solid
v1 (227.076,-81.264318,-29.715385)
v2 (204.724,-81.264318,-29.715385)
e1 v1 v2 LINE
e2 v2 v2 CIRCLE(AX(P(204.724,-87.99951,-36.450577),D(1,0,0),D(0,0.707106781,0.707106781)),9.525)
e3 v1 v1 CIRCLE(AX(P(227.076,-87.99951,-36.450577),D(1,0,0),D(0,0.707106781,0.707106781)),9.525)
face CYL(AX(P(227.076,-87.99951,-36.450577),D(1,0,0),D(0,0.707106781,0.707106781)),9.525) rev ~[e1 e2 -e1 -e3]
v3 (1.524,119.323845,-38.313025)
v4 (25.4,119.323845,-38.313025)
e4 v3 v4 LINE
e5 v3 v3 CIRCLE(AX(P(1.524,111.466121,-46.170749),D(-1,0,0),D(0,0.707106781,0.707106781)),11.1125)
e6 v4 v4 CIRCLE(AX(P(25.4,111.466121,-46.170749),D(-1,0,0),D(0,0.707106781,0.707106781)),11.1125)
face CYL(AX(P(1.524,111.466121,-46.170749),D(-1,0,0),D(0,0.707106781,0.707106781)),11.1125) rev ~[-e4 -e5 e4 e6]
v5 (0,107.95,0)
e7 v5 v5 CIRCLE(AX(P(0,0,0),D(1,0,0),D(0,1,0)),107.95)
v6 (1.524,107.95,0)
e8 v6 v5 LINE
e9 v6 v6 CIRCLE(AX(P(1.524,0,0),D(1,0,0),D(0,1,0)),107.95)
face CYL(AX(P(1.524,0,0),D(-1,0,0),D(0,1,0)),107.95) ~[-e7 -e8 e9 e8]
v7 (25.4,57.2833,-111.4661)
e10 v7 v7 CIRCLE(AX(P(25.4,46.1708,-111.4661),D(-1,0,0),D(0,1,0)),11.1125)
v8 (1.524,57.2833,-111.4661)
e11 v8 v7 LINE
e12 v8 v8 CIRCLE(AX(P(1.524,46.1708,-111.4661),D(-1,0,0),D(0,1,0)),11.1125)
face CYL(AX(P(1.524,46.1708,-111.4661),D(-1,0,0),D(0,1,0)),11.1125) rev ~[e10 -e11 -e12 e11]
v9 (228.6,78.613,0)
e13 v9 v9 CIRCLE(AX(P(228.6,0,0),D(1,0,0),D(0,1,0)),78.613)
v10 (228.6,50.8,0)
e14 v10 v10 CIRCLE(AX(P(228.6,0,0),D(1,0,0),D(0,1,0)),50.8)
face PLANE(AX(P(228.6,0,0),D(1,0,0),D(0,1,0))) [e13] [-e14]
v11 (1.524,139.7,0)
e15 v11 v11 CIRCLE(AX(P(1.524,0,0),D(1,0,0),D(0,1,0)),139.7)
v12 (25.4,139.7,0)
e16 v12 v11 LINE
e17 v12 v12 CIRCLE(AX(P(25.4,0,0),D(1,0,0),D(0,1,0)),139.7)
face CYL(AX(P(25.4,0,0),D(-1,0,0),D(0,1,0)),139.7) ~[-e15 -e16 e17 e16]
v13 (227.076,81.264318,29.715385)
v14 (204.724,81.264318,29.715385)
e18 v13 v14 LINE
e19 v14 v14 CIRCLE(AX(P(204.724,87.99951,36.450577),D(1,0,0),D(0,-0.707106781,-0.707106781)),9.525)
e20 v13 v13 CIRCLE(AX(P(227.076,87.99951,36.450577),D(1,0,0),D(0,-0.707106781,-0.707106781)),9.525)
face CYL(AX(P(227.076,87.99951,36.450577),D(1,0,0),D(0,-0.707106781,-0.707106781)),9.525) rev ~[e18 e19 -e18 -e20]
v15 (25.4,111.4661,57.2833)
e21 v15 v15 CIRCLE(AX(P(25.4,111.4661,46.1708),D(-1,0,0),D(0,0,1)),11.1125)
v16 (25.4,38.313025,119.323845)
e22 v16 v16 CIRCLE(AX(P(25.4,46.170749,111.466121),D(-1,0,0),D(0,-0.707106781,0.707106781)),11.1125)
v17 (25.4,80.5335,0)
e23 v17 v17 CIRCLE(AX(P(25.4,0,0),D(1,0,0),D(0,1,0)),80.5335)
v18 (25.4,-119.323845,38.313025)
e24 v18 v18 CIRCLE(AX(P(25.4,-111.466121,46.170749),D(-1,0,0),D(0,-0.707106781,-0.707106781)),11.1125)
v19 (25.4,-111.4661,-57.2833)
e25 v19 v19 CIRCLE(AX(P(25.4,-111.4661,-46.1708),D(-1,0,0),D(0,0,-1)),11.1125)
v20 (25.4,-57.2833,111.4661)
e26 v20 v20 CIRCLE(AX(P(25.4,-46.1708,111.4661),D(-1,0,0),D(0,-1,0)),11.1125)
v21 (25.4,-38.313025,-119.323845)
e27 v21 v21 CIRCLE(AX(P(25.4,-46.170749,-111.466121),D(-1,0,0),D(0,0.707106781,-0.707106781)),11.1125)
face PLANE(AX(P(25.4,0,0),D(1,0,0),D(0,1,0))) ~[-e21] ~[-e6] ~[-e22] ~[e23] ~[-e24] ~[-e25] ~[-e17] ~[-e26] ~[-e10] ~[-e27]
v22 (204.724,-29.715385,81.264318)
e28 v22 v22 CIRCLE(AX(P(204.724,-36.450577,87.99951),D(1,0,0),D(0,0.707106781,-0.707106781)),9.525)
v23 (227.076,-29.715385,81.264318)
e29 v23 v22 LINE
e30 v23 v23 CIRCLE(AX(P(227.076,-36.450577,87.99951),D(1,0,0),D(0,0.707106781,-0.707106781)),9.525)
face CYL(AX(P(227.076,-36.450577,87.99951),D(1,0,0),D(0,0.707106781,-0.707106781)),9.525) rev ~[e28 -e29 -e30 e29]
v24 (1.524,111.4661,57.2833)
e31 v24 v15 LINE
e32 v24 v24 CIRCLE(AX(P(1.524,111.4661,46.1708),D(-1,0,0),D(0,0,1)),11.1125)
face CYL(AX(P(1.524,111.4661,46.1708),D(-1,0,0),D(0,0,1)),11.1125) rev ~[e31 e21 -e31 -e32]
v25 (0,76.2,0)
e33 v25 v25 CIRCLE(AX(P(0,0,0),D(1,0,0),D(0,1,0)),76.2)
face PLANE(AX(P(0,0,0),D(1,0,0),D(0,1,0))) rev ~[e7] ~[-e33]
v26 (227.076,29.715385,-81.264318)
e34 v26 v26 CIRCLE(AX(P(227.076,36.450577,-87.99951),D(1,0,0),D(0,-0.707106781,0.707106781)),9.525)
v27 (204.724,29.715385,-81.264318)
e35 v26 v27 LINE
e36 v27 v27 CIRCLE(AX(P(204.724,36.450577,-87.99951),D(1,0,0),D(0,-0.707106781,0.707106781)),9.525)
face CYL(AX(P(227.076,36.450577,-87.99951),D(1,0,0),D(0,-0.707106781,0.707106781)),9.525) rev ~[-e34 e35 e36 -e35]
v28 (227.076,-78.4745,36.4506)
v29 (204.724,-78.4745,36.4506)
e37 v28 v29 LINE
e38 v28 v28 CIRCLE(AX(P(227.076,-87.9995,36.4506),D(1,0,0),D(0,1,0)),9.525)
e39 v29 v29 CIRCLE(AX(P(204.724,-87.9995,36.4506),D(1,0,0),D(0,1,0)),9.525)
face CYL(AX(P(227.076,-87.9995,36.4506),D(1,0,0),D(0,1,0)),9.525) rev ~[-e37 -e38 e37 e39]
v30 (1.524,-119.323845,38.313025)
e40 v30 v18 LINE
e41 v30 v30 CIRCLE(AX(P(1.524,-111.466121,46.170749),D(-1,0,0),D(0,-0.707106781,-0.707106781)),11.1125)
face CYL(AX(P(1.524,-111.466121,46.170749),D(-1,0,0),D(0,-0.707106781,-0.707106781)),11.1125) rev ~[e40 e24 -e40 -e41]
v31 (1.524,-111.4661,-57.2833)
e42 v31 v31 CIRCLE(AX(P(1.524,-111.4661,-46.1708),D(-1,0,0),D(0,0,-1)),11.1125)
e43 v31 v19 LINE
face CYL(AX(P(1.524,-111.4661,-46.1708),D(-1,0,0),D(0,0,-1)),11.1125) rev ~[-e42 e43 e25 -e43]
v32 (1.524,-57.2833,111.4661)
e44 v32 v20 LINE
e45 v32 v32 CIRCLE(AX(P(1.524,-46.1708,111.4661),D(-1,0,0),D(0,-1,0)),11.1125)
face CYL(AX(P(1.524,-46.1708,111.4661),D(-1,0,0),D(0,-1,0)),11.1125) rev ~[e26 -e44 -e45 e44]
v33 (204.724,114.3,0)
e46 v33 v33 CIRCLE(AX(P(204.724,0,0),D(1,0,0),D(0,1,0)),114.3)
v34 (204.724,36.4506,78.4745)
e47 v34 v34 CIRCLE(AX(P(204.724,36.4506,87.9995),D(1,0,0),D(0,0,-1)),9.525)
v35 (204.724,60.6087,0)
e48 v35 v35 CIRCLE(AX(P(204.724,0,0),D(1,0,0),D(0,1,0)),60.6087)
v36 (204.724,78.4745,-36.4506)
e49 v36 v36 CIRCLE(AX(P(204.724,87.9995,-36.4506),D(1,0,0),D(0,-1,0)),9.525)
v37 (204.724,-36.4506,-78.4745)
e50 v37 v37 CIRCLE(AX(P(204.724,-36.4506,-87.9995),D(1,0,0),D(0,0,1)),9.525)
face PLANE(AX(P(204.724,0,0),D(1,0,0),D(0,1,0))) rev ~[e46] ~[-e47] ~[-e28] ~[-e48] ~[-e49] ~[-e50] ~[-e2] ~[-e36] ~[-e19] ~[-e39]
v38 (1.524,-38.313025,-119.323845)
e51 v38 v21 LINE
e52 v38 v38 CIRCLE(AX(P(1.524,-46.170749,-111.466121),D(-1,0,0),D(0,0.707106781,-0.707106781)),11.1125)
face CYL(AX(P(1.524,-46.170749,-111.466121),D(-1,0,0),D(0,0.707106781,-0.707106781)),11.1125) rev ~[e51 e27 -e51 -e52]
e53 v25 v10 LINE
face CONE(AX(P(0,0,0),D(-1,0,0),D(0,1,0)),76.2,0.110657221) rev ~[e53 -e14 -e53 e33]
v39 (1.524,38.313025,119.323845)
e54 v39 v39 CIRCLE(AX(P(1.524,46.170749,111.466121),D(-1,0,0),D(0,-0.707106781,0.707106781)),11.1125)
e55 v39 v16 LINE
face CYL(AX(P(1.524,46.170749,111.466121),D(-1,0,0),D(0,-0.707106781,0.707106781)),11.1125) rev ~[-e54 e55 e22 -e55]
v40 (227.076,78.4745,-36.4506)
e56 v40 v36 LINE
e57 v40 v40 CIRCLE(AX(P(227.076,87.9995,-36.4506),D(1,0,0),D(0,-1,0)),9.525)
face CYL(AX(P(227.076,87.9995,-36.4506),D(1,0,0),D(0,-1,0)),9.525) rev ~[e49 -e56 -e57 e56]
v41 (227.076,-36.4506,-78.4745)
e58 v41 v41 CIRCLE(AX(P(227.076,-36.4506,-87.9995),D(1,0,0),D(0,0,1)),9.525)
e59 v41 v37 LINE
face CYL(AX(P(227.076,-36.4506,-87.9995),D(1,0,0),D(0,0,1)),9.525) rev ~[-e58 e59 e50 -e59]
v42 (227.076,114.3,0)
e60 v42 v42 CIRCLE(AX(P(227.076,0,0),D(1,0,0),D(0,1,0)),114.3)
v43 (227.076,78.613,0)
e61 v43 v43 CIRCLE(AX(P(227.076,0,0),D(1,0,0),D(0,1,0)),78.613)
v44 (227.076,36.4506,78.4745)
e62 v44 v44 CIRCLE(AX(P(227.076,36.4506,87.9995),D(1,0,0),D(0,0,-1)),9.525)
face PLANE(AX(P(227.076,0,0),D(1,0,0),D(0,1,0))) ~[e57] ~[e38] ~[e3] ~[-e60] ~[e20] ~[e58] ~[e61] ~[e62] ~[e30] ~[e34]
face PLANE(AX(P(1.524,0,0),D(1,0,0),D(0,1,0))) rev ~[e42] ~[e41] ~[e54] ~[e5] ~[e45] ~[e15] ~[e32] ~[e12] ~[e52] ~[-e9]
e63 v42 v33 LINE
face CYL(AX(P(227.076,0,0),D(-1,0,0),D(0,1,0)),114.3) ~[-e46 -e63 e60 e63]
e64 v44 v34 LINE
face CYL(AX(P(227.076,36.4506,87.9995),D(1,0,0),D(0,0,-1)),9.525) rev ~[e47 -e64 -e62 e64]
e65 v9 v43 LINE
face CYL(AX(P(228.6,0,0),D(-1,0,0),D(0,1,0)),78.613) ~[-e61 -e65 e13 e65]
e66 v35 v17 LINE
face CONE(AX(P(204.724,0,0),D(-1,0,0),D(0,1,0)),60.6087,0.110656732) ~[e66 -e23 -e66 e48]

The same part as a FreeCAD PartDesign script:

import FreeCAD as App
import Part
import Sketcher
from FreeCAD import Vector
Q = App.Units.Quantity


def add_polygon(sketch, points):
    """Adds a closed chain of lines whose ends are joined by coincident constraints."""
    first, n = sketch.GeometryCount, len(points)
    for a, b in zip(points, points[1:] + points[:1]):
        sketch.addGeometry(Part.LineSegment(App.Vector(*a, 0), App.Vector(*b, 0)), False)
    for i in range(n):
        sketch.addConstraint(Sketcher.Constraint("Coincident", first + i, 2, first + (i + 1) % n, 1))

doc = App.newDocument("Part")
body = doc.addObject("PartDesign::Body", "Body")

sketch1 = body.newObject("Sketcher::SketchObject", "Sketch")
sketch1.AttachmentSupport = (doc.getObject("XY_Plane"), [""])
sketch1.MapMode = "FlatFace"
add_polygon(sketch1, [(228.6, 50.8), (228.6, 78.6), (227.1, 78.6), (227.1, 114.3), (204.7, 114.3), (204.7, 60.6), (25.4, 80.5), (25.4, 139.7), (1.5, 139.7), (1.5, 108), (0, 108), (0, 76.2)])
sketch1.addConstraint([
    Sketcher.Constraint("Vertical", 0),
    Sketcher.Constraint("Horizontal", 1),
    Sketcher.Constraint("Vertical", 2),
    Sketcher.Constraint("Horizontal", 3),
    Sketcher.Constraint("Vertical", 4),
    Sketcher.Constraint("Vertical", 6),
    Sketcher.Constraint("Horizontal", 7),
    Sketcher.Constraint("Vertical", 8),
    Sketcher.Constraint("Horizontal", 9),
    Sketcher.Constraint("Vertical", 10),
    Sketcher.Constraint("PointOnObject", 9, 2, -2),
    Sketcher.Constraint("Parallel", 5, 11),
    Sketcher.Constraint("Equal", 1, 9),
    Sketcher.Constraint("Equal", 8, 10),
    Sketcher.Constraint("DistanceX", -1, 1, 0, 2, Q("9 in")),
    Sketcher.Constraint("DistanceX", -1, 1, 5, 2, Q("1 in")),
    Sketcher.Constraint("DistanceY", 3, 2, 6, 2, Q("1 in")),
    Sketcher.Constraint("DistanceX", 1, 2, 1, 1, Q("0.06 in")),
    Sketcher.Constraint("DistanceX", 3, 2, 0, 2, Q("0.94 in")),
    Sketcher.Constraint("DistanceY", -1, 1, 10, 2, Q("3 in")),
    Sketcher.Constraint("DistanceY", -1, 1, 11, 2, Q("2 in")),
    Sketcher.Constraint("DistanceY", 8, 2, 8, 1, Q("1.25 in")),
    Sketcher.Constraint("DistanceY", 0, 1, 0, 2, Q("1.095 in")),
    Sketcher.Constraint("DistanceY", 6, 1, 6, 2, Q("2.3294 in")),
])
revolution = body.newObject("PartDesign::Revolution", "Revolution")
revolution.Profile = sketch1
revolution.ReferenceAxis = (sketch1, ["H_Axis"])
revolution.Angle = 360

sketch2 = body.newObject("Sketcher::SketchObject", "Sketch001")
sketch2.AttachmentSupport = (doc.getObject("YZ_Plane"), [""])
sketch2.MapMode = "FlatFace"
sketch2.AttachmentOffset = App.Placement(Vector(0, 0, 0.06 * 25.4), App.Rotation())
sketch2.addGeometry(Part.Circle(Vector(111, 46, 0), Vector(0, 0, 1), 11), False)
sketch2.addConstraint([
    Sketcher.Constraint("Diameter", 0, Q("0.875 in")),
    Sketcher.Constraint("DistanceX", -1, 1, 0, 3, Q("111.466 mm")),
    Sketcher.Constraint("DistanceY", -1, 1, 0, 3, Q("46.1708 mm")),
])
pocket1 = body.newObject("PartDesign::Pocket", "Pocket")
pocket1.Profile = sketch2
pocket1.Length = Q("0.94 in")
pocket1.Reversed = True
doc.recompute()

polarpattern = body.newObject("PartDesign::PolarPattern", "PolarPattern")
polarpattern.Originals = [pocket1]
polarpattern.Axis = (doc.getObject("X_Axis"), [""])
polarpattern.Angle = 360
polarpattern.Occurrences = 8
body.Tip = polarpattern

sketch3 = body.newObject("Sketcher::SketchObject", "Sketch002")
sketch3.AttachmentSupport = (doc.getObject("YZ_Plane"), [""])
sketch3.MapMode = "FlatFace"
sketch3.AttachmentOffset = App.Placement(Vector(0, 0, 8.94 * 25.4), App.Rotation())
sketch3.addGeometry(Part.Circle(Vector(36, 88, 0), Vector(0, 0, 1), 10), False)
sketch3.addConstraint([
    Sketcher.Constraint("Diameter", 0, Q("0.75 in")),
    Sketcher.Constraint("DistanceX", -1, 1, 0, 3, Q("36.4506 mm")),
    Sketcher.Constraint("DistanceY", -1, 1, 0, 3, Q("87.9995 mm")),
])
pocket2 = body.newObject("PartDesign::Pocket", "Pocket001")
pocket2.Profile = sketch3
pocket2.Length = Q("0.88 in")
doc.recompute()

polarpattern2 = body.newObject("PartDesign::PolarPattern", "PolarPattern001")
polarpattern2.Originals = [pocket2]
polarpattern2.Axis = (doc.getObject("X_Axis"), [""])
polarpattern2.Angle = 360
polarpattern2.Occurrences = 8
body.Tip = polarpattern2

doc.recompute()
